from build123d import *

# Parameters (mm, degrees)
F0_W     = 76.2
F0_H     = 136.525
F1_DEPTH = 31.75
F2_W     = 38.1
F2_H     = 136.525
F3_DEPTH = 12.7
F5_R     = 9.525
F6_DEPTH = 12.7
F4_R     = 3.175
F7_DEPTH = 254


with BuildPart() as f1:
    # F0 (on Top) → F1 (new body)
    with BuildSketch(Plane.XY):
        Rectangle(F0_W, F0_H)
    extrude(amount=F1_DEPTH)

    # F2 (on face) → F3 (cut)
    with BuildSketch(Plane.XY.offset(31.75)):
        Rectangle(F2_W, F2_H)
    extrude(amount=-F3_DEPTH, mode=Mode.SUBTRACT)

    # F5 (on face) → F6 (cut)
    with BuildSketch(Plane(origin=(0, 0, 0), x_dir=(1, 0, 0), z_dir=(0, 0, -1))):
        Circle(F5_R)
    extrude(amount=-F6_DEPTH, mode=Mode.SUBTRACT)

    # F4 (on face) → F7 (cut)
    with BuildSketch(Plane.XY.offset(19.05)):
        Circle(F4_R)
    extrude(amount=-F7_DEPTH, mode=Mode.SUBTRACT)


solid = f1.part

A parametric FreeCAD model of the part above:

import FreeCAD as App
import Part
import Sketcher
Q = App.Units.Quantity


def add_polygon(sketch, points):
    """Adds a closed chain of lines whose ends are joined by coincident constraints."""
    first, n = sketch.GeometryCount, len(points)
    for a, b in zip(points, points[1:] + points[:1]):
        sketch.addGeometry(Part.LineSegment(App.Vector(*a, 0), App.Vector(*b, 0)), False)
    for i in range(n):
        sketch.addConstraint(Sketcher.Constraint("Coincident", first + i, 2, first + (i + 1) % n, 1))

doc = App.newDocument("Part")
body = doc.addObject("PartDesign::Body", "Body")

sketch1 = doc.addObject("Sketcher::SketchObject", "Sketch")
body.addObject(sketch1)
sketch1.AttachmentSupport = (doc.XY_Plane, [""])
sketch1.MapMode = "FlatFace"
add_polygon(sketch1, [(-38.1, 68.2625), (-38.1, -68.2625), (38.1, -68.2625), (38.1, 68.2625)])
sketch1.addConstraint(Sketcher.Constraint("Vertical", 0))
sketch1.addConstraint(Sketcher.Constraint("Horizontal", 1))
sketch1.addConstraint(Sketcher.Constraint("Vertical", 2))
sketch1.addConstraint(Sketcher.Constraint("Horizontal", 3))
sketch1.addConstraint(Sketcher.Constraint("Symmetric", 0, 2, 2, 2, -1, 1))
sketch1.addConstraint(Sketcher.Constraint("DistanceX", 1, 1, 1, 2, Q("3 in")))
sketch1.addConstraint(Sketcher.Constraint("DistanceY", 0, 2, 0, 1, Q("5.375 in")))
pad1 = doc.addObject("PartDesign::Pad", "Pad")
body.addObject(pad1)
pad1.Profile = sketch1
pad1.Length = Q("1.25 in")

sketch2 = doc.addObject("Sketcher::SketchObject", "Sketch001")
body.addObject(sketch2)
sketch2.AttachmentSupport = (doc.XY_Plane, [""])
sketch2.MapMode = "FlatFace"
sketch2.AttachmentOffset = App.Placement(App.Vector(0, 0, 1.25 * 25.4), App.Rotation())
add_polygon(sketch2, [(-19.05, 68.2625), (-19.05, -68.2625), (19.05, -68.2625), (19.05, 68.2625)])
sketch2.addConstraint(Sketcher.Constraint("Vertical", 0))
sketch2.addConstraint(Sketcher.Constraint("Horizontal", 1))
sketch2.addConstraint(Sketcher.Constraint("Vertical", 2))
sketch2.addConstraint(Sketcher.Constraint("Horizontal", 3))
sketch2.addConstraint(Sketcher.Constraint("Symmetric", 0, 2, 2, 2, -1, 1))
sketch2.addConstraint(Sketcher.Constraint("DistanceX", 1, 1, 1, 2, Q("1.5 in")))
sketch2.addConstraint(Sketcher.Constraint("DistanceY", 0, 2, 0, 1, Q("5.375 in")))
pocket1 = doc.addObject("PartDesign::Pocket", "Pocket")
body.addObject(pocket1)
pocket1.Profile = sketch2
pocket1.Length = Q("0.5 in")

sketch3 = doc.addObject("Sketcher::SketchObject", "Sketch002")
body.addObject(sketch3)
sketch3.AttachmentSupport = (doc.XY_Plane, [""])
sketch3.MapMode = "FlatFace"
sketch3.addGeometry(Part.Circle(App.Vector(0, 0, 0), App.Vector(0, 0, 1), 9.525), False)
sketch3.addConstraint(Sketcher.Constraint("Coincident", 0, 3, -1, 1))
sketch3.addConstraint(Sketcher.Constraint("Diameter", 0, Q("0.75 in")))
pocket2 = doc.addObject("PartDesign::Pocket", "Pocket001")
body.addObject(pocket2)
pocket2.Profile = sketch3
pocket2.Length = Q("0.5 in")
pocket2.Reversed = True

sketch4 = doc.addObject("Sketcher::SketchObject", "Sketch003")
body.addObject(sketch4)
sketch4.AttachmentSupport = (doc.XY_Plane, [""])
sketch4.MapMode = "FlatFace"
sketch4.AttachmentOffset = App.Placement(App.Vector(0, 0, 0.75 * 25.4), App.Rotation())
sketch4.addGeometry(Part.Circle(App.Vector(0, 0, 0), App.Vector(0, 0, 1), 3.175), False)
sketch4.addConstraint(Sketcher.Constraint("Coincident", 0, 3, -1, 1))
sketch4.addConstraint(Sketcher.Constraint("Diameter", 0, Q("0.25 in")))
pocket3 = doc.addObject("PartDesign::Pocket", "Pocket002")
body.addObject(pocket3)
pocket3.Profile = sketch4
pocket3.Length = Q("10 in")

doc.recompute()
